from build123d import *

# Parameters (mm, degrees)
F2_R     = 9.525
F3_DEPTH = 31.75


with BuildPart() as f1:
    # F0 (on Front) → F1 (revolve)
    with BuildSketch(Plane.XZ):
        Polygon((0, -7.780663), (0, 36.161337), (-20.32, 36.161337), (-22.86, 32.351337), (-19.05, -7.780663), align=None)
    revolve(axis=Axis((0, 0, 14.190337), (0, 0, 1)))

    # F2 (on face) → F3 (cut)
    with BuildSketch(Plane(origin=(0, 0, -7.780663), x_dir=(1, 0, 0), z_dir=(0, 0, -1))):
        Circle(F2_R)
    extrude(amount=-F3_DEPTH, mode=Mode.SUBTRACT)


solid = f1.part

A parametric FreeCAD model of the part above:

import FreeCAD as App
import Part
import Sketcher
from FreeCAD import Vector
Q = App.Units.Quantity


def add_polygon(sketch, points):
    """Adds a closed chain of lines whose ends are joined by coincident constraints."""
    first, n = sketch.GeometryCount, len(points)
    for a, b in zip(points, points[1:] + points[:1]):
        sketch.addGeometry(Part.LineSegment(App.Vector(*a, 0), App.Vector(*b, 0)), False)
    for i in range(n):
        sketch.addConstraint(Sketcher.Constraint("Coincident", first + i, 2, first + (i + 1) % n, 1))

doc = App.newDocument("Part")
body = doc.addObject("PartDesign::Body", "Body")

# Sketch on XZ plane
sketch1 = body.newObject("Sketcher::SketchObject", "Sketch")
sketch1.AttachmentSupport = (doc.getObject("XZ_Plane"), [""])
sketch1.MapMode = "FlatFace"
add_polygon(sketch1, [(0, -7.8), (0, 36.2), (-20.3, 36.2), (-22.9, 32.4), (-19.1, -7.8)])  # lines 0-4
sketch1.addConstraint(Sketcher.Constraint("Vertical", 0))
sketch1.addConstraint(Sketcher.Constraint("Horizontal", 1))
sketch1.addConstraint(Sketcher.Constraint("Horizontal", 4))
sketch1.addConstraint(Sketcher.Constraint("PointOnObject", 0, 2, -2))
sketch1.addConstraint(Sketcher.Constraint("DistanceX", 1, 2, 1, 1, Q("0.8 in")))
sketch1.addConstraint(Sketcher.Constraint("DistanceX", 4, 1, 4, 2, Q("0.75 in")))
sketch1.addConstraint(Sketcher.Constraint("DistanceY", 0, 1, 0, 2, Q("1.73 in")))
sketch1.addConstraint(Sketcher.Constraint("DistanceX", 2, 2, -1, 1, Q("0.9 in")))
sketch1.addConstraint(Sketcher.Constraint("DistanceY", 2, 2, 1, 2, Q("0.15 in")))
sketch1.addConstraint(Sketcher.Constraint("DistanceY", -1, 1, 0, 2, Q("36.161337 mm")))
revolution = body.newObject("PartDesign::Revolution", "Revolution")
revolution.Profile = sketch1
revolution.ReferenceAxis = (sketch1, ["V_Axis"])
revolution.Angle = 360

# Sketch on XY plane
sketch2 = body.newObject("Sketcher::SketchObject", "Sketch001")
sketch2.AttachmentSupport = (doc.getObject("XY_Plane"), [""])
sketch2.MapMode = "FlatFace"
sketch2.AttachmentOffset = App.Placement(Vector(0, 0, -7.780663), App.Rotation())
sketch2.addGeometry(Part.Circle(Vector(0, 0, 0), Vector(0, 0, 1), 10), False)
sketch2.addConstraint(Sketcher.Constraint("Coincident", 0, 3, -1, 1))
sketch2.addConstraint(Sketcher.Constraint("Diameter", 0, Q("0.75 in")))
pocket1 = body.newObject("PartDesign::Pocket", "Pocket")
pocket1.Profile = sketch2
pocket1.Length = Q("1.25 in")
pocket1.Reversed = True

doc.recompute()
